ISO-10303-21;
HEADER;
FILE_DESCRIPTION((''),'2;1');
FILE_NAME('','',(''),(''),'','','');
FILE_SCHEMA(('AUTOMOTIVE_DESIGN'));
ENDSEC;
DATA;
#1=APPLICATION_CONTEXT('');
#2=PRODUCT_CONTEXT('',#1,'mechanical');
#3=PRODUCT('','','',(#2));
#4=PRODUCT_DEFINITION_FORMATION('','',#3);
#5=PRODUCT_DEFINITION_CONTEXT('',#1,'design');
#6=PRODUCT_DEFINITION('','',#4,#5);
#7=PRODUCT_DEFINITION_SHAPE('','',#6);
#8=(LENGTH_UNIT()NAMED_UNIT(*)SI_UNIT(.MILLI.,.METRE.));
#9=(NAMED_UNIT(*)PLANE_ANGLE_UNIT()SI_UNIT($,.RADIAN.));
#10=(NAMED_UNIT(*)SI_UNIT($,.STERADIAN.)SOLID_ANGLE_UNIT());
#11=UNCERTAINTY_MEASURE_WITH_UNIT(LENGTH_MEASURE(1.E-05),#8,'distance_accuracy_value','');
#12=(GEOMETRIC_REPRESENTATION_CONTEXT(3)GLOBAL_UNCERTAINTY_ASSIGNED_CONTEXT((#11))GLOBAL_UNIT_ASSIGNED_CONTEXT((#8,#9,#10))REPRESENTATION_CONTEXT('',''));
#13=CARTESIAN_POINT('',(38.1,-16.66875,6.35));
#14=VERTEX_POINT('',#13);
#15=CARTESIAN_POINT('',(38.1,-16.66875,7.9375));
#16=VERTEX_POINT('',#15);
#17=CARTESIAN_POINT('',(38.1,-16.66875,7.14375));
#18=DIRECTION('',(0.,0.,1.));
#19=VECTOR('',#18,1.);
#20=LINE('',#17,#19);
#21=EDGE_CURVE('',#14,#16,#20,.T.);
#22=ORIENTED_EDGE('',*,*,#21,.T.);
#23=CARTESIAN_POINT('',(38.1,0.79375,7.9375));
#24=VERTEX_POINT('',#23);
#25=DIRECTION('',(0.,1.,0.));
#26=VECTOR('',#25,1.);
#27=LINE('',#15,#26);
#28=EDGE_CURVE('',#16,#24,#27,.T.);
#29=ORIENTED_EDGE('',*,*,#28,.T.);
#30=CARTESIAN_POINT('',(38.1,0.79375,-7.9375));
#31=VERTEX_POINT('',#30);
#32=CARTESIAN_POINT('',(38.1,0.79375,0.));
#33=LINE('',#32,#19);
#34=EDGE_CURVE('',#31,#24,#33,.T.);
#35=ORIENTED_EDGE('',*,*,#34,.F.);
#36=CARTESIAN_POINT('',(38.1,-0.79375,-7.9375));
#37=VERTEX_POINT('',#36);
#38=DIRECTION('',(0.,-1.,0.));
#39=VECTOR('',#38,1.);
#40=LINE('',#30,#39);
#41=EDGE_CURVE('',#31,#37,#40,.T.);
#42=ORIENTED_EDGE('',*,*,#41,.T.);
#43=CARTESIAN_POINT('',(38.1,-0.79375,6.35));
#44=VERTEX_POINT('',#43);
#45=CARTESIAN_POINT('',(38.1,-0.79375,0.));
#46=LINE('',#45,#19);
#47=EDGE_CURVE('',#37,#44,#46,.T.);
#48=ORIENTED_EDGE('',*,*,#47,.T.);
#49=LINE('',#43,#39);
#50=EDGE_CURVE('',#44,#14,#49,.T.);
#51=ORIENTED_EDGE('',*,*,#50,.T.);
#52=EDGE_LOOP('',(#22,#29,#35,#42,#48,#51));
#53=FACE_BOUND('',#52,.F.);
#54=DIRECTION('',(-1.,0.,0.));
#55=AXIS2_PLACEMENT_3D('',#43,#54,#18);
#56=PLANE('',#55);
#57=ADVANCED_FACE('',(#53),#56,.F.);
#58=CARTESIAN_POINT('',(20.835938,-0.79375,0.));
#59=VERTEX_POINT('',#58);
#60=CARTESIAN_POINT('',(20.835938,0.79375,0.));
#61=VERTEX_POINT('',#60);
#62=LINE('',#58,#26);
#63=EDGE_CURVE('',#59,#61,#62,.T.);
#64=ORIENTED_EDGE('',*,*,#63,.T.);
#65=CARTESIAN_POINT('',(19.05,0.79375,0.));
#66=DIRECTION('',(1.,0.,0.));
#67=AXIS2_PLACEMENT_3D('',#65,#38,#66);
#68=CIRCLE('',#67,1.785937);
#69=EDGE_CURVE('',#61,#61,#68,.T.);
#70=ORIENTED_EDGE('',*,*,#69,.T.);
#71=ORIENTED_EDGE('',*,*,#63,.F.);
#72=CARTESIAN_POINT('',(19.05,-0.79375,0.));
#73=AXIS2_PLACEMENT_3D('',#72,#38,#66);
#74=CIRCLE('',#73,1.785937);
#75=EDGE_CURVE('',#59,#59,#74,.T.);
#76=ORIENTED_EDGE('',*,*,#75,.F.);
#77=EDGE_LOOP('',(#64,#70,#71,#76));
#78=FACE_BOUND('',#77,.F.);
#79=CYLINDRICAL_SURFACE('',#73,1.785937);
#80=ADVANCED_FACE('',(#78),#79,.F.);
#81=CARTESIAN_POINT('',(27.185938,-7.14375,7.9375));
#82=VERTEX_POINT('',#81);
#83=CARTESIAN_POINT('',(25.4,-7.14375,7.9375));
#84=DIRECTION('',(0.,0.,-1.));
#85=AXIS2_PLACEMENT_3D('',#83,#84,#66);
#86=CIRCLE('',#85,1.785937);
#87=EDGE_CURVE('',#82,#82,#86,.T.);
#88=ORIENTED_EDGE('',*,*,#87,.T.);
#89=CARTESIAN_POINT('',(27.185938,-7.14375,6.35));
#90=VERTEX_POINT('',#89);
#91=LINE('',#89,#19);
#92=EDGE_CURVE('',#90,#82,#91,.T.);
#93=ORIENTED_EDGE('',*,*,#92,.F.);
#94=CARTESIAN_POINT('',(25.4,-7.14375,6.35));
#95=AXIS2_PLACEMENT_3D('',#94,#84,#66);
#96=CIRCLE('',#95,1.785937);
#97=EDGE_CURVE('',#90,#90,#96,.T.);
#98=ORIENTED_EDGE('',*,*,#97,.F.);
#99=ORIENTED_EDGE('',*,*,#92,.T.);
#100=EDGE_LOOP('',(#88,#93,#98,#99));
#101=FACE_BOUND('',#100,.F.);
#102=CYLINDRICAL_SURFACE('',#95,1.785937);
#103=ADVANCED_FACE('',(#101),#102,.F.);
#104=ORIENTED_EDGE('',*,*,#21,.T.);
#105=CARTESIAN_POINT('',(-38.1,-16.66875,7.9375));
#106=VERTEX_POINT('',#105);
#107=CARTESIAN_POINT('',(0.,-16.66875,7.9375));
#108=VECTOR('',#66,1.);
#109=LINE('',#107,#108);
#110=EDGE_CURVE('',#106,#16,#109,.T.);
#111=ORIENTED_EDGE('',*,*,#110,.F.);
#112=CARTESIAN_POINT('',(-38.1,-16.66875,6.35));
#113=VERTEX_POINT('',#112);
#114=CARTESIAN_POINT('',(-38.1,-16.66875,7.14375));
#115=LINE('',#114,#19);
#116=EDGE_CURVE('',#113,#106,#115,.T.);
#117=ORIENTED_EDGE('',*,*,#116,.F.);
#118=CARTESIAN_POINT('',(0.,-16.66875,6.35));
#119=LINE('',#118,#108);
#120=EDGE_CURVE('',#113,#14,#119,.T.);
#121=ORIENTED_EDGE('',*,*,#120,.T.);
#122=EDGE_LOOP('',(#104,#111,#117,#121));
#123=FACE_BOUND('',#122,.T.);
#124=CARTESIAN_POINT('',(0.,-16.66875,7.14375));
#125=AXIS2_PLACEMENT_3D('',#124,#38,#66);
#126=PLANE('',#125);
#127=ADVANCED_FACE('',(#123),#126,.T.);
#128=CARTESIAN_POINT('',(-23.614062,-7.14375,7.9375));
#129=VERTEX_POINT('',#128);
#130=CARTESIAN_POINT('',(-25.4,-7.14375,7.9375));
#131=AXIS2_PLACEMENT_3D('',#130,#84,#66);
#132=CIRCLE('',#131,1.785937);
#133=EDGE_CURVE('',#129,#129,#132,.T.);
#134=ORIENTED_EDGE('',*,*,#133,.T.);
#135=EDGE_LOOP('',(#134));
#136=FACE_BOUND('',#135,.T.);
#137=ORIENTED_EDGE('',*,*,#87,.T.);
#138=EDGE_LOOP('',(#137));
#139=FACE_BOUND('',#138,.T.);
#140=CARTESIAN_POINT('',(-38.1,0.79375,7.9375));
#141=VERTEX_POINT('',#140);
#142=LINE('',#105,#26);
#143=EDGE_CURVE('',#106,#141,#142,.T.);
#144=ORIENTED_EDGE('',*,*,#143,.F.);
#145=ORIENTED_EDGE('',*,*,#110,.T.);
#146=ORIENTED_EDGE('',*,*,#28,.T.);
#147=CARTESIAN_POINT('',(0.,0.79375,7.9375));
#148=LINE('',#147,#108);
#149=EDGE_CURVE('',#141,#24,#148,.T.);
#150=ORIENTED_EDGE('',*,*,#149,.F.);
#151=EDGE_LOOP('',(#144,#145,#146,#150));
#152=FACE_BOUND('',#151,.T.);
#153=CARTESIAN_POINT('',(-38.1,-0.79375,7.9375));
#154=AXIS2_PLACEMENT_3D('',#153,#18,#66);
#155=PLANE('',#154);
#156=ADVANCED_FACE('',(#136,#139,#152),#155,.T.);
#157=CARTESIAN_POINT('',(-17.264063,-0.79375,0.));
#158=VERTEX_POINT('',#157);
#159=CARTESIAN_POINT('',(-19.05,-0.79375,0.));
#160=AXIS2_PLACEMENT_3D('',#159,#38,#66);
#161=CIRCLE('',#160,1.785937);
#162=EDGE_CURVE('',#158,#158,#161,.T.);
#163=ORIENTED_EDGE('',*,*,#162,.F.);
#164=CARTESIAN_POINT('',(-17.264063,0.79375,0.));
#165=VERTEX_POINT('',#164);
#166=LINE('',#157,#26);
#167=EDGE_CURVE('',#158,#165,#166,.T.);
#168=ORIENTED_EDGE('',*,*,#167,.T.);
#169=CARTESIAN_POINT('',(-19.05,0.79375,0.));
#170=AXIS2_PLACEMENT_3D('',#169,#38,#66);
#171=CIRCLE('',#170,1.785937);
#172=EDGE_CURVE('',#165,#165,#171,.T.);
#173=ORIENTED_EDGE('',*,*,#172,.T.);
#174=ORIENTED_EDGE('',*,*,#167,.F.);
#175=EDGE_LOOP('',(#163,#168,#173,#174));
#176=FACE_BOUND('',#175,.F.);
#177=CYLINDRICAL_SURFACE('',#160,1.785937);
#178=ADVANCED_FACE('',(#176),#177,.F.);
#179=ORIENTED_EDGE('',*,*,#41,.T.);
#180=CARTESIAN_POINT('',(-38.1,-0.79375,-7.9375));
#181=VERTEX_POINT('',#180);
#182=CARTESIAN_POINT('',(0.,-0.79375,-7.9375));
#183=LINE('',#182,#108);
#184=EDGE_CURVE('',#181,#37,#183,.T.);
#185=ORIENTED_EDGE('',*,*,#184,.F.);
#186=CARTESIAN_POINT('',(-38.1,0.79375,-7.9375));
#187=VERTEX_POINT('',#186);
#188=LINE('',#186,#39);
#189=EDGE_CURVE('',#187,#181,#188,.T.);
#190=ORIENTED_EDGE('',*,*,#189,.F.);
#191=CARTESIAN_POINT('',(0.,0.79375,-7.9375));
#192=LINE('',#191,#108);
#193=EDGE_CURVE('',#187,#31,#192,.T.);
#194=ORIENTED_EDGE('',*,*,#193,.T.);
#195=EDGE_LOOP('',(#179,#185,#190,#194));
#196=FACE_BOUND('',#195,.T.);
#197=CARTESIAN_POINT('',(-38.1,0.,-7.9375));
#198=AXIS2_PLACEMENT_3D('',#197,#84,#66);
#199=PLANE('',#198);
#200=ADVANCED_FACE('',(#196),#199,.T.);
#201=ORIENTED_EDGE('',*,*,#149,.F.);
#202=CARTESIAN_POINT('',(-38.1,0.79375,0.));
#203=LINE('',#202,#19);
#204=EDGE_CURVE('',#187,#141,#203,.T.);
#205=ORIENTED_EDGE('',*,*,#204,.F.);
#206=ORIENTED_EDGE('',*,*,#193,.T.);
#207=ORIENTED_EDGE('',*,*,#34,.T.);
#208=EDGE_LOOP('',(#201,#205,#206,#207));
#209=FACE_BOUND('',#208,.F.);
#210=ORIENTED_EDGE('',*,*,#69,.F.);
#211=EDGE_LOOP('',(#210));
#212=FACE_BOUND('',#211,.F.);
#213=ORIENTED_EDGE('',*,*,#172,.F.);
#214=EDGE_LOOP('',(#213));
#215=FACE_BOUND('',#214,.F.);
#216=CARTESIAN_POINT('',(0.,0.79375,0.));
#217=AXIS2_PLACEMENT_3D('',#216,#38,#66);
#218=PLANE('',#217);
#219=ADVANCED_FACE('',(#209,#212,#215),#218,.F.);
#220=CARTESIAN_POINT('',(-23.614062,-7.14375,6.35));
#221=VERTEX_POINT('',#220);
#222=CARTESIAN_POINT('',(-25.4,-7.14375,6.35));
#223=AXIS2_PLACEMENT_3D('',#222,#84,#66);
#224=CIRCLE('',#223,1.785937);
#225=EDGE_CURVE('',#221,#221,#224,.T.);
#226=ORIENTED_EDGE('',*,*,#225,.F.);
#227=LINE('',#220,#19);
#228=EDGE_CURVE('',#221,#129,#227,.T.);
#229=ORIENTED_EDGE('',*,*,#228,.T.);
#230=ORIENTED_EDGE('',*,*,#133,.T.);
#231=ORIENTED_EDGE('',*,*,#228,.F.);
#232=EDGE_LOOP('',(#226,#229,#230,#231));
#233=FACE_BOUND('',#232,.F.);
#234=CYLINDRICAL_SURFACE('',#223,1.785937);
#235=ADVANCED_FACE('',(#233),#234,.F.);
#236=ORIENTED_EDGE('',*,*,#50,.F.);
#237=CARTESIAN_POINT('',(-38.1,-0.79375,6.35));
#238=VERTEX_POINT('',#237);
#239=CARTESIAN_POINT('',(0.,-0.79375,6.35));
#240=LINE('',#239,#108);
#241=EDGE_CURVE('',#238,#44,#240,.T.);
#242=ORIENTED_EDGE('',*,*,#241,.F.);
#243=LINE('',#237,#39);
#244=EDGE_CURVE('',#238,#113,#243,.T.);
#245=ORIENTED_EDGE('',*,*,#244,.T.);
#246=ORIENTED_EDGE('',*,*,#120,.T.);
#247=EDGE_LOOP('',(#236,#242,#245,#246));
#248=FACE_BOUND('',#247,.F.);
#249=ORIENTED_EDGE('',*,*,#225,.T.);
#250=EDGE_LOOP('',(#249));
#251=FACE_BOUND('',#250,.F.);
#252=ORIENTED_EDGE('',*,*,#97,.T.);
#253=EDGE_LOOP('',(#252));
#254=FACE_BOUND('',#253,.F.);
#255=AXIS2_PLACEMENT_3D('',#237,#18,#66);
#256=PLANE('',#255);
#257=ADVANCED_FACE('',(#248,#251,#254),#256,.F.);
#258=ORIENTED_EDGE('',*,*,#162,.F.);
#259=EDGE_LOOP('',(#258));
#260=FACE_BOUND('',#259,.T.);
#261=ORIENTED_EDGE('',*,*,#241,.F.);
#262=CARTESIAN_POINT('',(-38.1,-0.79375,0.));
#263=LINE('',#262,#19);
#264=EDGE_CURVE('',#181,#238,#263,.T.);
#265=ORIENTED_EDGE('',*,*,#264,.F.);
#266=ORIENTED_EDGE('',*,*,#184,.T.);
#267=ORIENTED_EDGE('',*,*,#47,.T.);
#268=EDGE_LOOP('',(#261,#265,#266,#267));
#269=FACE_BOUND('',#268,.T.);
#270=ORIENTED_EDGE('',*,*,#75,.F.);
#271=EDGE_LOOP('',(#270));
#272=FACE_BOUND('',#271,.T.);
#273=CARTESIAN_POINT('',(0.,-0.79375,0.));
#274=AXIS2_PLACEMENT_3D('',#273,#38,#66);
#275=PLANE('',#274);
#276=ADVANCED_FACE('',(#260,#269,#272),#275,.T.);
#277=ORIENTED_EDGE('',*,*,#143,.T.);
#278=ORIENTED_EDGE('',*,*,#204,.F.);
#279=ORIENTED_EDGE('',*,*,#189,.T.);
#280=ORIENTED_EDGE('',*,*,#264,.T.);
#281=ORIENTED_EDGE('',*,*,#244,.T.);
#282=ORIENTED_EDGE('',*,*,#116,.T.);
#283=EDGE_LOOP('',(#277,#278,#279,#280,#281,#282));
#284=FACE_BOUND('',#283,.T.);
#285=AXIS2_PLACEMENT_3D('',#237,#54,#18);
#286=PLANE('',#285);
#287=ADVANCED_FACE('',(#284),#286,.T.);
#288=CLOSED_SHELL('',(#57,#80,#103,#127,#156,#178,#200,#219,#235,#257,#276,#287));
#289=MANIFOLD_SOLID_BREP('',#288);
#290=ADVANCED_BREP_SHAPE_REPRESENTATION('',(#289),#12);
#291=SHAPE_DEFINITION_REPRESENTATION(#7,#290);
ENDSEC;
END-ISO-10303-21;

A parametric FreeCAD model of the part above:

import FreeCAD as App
import Part
import Sketcher
from FreeCAD import Vector
Q = App.Units.Quantity


def add_polygon(sketch, points):
    """Adds a closed chain of lines whose ends are joined by coincident constraints."""
    first, n = sketch.GeometryCount, len(points)
    for a, b in zip(points, points[1:] + points[:1]):
        sketch.addGeometry(Part.LineSegment(App.Vector(*a, 0), App.Vector(*b, 0)), False)
    for i in range(n):
        sketch.addConstraint(Sketcher.Constraint("Coincident", first + i, 2, first + (i + 1) % n, 1))

doc = App.newDocument("Part")
body = doc.addObject("PartDesign::Body", "Body")

# Sketch on XZ plane
sketch1 = body.newObject("Sketcher::SketchObject", "Sketch")
sketch1.AttachmentSupport = (doc.getObject("XZ_Plane"), [""])
sketch1.MapMode = "FlatFace"
add_polygon(sketch1, [(-38.1, 7.9375), (-38.1, -7.9375), (38.1, -7.9375), (38.1, 7.9375)])  # lines 0-3
sketch1.addConstraint([
    Sketcher.Constraint("Vertical", 0),
    Sketcher.Constraint("Horizontal", 1),
    Sketcher.Constraint("Vertical", 2),
    Sketcher.Constraint("Horizontal", 3),
    Sketcher.Constraint("Symmetric", 0, 2, 2, 2, -1, 1),
    Sketcher.Constraint("DistanceX", 1, 1, 1, 2, Q("3 in")),
    Sketcher.Constraint("DistanceY", 0, 2, 0, 1, Q("0.625 in")),
])
pad1 = body.newObject("PartDesign::Pad", "Pad")
pad1.Profile = sketch1
pad1.Length = Q("0.0625 in")
pad1.Midplane = True

# Sketch on XZ plane
sketch2 = body.newObject("Sketcher::SketchObject", "Sketch001")
sketch2.AttachmentSupport = (doc.getObject("XZ_Plane"), [""])
sketch2.MapMode = "FlatFace"
sketch2.AttachmentOffset = App.Placement(Vector(0, 0, 0.03125 * 25.4), App.Rotation())
sketch2.addGeometry(Part.Circle(Vector(-19.05, 0, 0), Vector(0, 0, 1), 1.785937), False)
sketch2.addConstraint([
    Sketcher.Constraint("PointOnObject", 0, 3, -1),
    Sketcher.Constraint("Diameter", 0, Q("0.140625 in")),
    Sketcher.Constraint("DistanceX", 0, 3, -1, 1, Q("0.75 in")),
])
pocket1 = body.newObject("PartDesign::Pocket", "Pocket")
pocket1.Profile = sketch2
pocket1.Type = "ThroughAll"

# Sketch on XZ plane
sketch3 = body.newObject("Sketcher::SketchObject", "Sketch002")
sketch3.AttachmentSupport = (doc.getObject("XZ_Plane"), [""])
sketch3.MapMode = "FlatFace"
sketch3.AttachmentOffset = App.Placement(Vector(0, 0, 0.03125 * 25.4), App.Rotation())
sketch3.addGeometry(Part.Circle(Vector(19.05, 0, 0), Vector(0, 0, 1), 1.785937), False)
sketch3.addConstraint([
    Sketcher.Constraint("PointOnObject", 0, 3, -1),
    Sketcher.Constraint("Diameter", 0, Q("0.140625 in")),
    Sketcher.Constraint("DistanceX", -1, 1, 0, 3, Q("0.75 in")),
])
pocket2 = body.newObject("PartDesign::Pocket", "Pocket001")
pocket2.Profile = sketch3
pocket2.Type = "ThroughAll"

# Sketch on XZ plane
sketch4 = body.newObject("Sketcher::SketchObject", "Sketch003")
sketch4.AttachmentSupport = (doc.getObject("XZ_Plane"), [""])
sketch4.MapMode = "FlatFace"
sketch4.AttachmentOffset = App.Placement(Vector(0, 0, 0.03125 * 25.4), App.Rotation())
add_polygon(sketch4, [(-38.1, 7.9375), (-38.1, 6.35), (38.1, 6.35), (38.1, 7.9375)])  # lines 0-3
sketch4.addConstraint([
    Sketcher.Constraint("Vertical", 0),
    Sketcher.Constraint("Horizontal", 1),
    Sketcher.Constraint("Vertical", 2),
    Sketcher.Constraint("Horizontal", 3),
    Sketcher.Constraint("DistanceX", 1, 1, 1, 2, Q("3 in")),
    Sketcher.Constraint("DistanceX", 0, 2, -1, 1, Q("1.5 in")),
    Sketcher.Constraint("DistanceY", 0, 2, 0, 1, Q("0.0625 in")),
    Sketcher.Constraint("DistanceY", -1, 1, 0, 2, Q("0.25 in")),
])
pad2 = body.newObject("PartDesign::Pad", "Pad001")
pad2.Profile = sketch4
pad2.Length = Q("0.625 in")

# Sketch on XY plane
sketch5 = body.newObject("Sketcher::SketchObject", "Sketch004")
sketch5.AttachmentSupport = (doc.getObject("XY_Plane"), [""])
sketch5.MapMode = "FlatFace"
sketch5.AttachmentOffset = App.Placement(Vector(0, 0, 0.25 * 25.4), App.Rotation())
sketch5.addGeometry(Part.Circle(Vector(-25.4, -7.14375, 0), Vector(0, 0, 1), 1.785937), False)
sketch5.addConstraint([
    Sketcher.Constraint("Diameter", 0, Q("0.140625 in")),
    Sketcher.Constraint("DistanceX", 0, 3, -1, 1, Q("1 in")),
    Sketcher.Constraint("DistanceY", 0, 3, -1, 1, Q("0.28125 in")),
])
pocket3 = body.newObject("PartDesign::Pocket", "Pocket002")
pocket3.Profile = sketch5
pocket3.Type = "ThroughAll"
pocket3.Reversed = True

# Sketch on XY plane
sketch6 = body.newObject("Sketcher::SketchObject", "Sketch005")
sketch6.AttachmentSupport = (doc.getObject("XY_Plane"), [""])
sketch6.MapMode = "FlatFace"
sketch6.AttachmentOffset = App.Placement(Vector(0, 0, 0.25 * 25.4), App.Rotation())
sketch6.addGeometry(Part.Circle(Vector(25.4, -7.14375, 0), Vector(0, 0, 1), 1.785937), False)
sketch6.addConstraint([
    Sketcher.Constraint("Diameter", 0, Q("0.140625 in")),
    Sketcher.Constraint("DistanceX", -1, 1, 0, 3, Q("1 in")),
    Sketcher.Constraint("DistanceY", 0, 3, -1, 1, Q("0.28125 in")),
])
pocket4 = body.newObject("PartDesign::Pocket", "Pocket003")
pocket4.Profile = sketch6
pocket4.Type = "ThroughAll"
pocket4.Reversed = True

doc.recompute()
